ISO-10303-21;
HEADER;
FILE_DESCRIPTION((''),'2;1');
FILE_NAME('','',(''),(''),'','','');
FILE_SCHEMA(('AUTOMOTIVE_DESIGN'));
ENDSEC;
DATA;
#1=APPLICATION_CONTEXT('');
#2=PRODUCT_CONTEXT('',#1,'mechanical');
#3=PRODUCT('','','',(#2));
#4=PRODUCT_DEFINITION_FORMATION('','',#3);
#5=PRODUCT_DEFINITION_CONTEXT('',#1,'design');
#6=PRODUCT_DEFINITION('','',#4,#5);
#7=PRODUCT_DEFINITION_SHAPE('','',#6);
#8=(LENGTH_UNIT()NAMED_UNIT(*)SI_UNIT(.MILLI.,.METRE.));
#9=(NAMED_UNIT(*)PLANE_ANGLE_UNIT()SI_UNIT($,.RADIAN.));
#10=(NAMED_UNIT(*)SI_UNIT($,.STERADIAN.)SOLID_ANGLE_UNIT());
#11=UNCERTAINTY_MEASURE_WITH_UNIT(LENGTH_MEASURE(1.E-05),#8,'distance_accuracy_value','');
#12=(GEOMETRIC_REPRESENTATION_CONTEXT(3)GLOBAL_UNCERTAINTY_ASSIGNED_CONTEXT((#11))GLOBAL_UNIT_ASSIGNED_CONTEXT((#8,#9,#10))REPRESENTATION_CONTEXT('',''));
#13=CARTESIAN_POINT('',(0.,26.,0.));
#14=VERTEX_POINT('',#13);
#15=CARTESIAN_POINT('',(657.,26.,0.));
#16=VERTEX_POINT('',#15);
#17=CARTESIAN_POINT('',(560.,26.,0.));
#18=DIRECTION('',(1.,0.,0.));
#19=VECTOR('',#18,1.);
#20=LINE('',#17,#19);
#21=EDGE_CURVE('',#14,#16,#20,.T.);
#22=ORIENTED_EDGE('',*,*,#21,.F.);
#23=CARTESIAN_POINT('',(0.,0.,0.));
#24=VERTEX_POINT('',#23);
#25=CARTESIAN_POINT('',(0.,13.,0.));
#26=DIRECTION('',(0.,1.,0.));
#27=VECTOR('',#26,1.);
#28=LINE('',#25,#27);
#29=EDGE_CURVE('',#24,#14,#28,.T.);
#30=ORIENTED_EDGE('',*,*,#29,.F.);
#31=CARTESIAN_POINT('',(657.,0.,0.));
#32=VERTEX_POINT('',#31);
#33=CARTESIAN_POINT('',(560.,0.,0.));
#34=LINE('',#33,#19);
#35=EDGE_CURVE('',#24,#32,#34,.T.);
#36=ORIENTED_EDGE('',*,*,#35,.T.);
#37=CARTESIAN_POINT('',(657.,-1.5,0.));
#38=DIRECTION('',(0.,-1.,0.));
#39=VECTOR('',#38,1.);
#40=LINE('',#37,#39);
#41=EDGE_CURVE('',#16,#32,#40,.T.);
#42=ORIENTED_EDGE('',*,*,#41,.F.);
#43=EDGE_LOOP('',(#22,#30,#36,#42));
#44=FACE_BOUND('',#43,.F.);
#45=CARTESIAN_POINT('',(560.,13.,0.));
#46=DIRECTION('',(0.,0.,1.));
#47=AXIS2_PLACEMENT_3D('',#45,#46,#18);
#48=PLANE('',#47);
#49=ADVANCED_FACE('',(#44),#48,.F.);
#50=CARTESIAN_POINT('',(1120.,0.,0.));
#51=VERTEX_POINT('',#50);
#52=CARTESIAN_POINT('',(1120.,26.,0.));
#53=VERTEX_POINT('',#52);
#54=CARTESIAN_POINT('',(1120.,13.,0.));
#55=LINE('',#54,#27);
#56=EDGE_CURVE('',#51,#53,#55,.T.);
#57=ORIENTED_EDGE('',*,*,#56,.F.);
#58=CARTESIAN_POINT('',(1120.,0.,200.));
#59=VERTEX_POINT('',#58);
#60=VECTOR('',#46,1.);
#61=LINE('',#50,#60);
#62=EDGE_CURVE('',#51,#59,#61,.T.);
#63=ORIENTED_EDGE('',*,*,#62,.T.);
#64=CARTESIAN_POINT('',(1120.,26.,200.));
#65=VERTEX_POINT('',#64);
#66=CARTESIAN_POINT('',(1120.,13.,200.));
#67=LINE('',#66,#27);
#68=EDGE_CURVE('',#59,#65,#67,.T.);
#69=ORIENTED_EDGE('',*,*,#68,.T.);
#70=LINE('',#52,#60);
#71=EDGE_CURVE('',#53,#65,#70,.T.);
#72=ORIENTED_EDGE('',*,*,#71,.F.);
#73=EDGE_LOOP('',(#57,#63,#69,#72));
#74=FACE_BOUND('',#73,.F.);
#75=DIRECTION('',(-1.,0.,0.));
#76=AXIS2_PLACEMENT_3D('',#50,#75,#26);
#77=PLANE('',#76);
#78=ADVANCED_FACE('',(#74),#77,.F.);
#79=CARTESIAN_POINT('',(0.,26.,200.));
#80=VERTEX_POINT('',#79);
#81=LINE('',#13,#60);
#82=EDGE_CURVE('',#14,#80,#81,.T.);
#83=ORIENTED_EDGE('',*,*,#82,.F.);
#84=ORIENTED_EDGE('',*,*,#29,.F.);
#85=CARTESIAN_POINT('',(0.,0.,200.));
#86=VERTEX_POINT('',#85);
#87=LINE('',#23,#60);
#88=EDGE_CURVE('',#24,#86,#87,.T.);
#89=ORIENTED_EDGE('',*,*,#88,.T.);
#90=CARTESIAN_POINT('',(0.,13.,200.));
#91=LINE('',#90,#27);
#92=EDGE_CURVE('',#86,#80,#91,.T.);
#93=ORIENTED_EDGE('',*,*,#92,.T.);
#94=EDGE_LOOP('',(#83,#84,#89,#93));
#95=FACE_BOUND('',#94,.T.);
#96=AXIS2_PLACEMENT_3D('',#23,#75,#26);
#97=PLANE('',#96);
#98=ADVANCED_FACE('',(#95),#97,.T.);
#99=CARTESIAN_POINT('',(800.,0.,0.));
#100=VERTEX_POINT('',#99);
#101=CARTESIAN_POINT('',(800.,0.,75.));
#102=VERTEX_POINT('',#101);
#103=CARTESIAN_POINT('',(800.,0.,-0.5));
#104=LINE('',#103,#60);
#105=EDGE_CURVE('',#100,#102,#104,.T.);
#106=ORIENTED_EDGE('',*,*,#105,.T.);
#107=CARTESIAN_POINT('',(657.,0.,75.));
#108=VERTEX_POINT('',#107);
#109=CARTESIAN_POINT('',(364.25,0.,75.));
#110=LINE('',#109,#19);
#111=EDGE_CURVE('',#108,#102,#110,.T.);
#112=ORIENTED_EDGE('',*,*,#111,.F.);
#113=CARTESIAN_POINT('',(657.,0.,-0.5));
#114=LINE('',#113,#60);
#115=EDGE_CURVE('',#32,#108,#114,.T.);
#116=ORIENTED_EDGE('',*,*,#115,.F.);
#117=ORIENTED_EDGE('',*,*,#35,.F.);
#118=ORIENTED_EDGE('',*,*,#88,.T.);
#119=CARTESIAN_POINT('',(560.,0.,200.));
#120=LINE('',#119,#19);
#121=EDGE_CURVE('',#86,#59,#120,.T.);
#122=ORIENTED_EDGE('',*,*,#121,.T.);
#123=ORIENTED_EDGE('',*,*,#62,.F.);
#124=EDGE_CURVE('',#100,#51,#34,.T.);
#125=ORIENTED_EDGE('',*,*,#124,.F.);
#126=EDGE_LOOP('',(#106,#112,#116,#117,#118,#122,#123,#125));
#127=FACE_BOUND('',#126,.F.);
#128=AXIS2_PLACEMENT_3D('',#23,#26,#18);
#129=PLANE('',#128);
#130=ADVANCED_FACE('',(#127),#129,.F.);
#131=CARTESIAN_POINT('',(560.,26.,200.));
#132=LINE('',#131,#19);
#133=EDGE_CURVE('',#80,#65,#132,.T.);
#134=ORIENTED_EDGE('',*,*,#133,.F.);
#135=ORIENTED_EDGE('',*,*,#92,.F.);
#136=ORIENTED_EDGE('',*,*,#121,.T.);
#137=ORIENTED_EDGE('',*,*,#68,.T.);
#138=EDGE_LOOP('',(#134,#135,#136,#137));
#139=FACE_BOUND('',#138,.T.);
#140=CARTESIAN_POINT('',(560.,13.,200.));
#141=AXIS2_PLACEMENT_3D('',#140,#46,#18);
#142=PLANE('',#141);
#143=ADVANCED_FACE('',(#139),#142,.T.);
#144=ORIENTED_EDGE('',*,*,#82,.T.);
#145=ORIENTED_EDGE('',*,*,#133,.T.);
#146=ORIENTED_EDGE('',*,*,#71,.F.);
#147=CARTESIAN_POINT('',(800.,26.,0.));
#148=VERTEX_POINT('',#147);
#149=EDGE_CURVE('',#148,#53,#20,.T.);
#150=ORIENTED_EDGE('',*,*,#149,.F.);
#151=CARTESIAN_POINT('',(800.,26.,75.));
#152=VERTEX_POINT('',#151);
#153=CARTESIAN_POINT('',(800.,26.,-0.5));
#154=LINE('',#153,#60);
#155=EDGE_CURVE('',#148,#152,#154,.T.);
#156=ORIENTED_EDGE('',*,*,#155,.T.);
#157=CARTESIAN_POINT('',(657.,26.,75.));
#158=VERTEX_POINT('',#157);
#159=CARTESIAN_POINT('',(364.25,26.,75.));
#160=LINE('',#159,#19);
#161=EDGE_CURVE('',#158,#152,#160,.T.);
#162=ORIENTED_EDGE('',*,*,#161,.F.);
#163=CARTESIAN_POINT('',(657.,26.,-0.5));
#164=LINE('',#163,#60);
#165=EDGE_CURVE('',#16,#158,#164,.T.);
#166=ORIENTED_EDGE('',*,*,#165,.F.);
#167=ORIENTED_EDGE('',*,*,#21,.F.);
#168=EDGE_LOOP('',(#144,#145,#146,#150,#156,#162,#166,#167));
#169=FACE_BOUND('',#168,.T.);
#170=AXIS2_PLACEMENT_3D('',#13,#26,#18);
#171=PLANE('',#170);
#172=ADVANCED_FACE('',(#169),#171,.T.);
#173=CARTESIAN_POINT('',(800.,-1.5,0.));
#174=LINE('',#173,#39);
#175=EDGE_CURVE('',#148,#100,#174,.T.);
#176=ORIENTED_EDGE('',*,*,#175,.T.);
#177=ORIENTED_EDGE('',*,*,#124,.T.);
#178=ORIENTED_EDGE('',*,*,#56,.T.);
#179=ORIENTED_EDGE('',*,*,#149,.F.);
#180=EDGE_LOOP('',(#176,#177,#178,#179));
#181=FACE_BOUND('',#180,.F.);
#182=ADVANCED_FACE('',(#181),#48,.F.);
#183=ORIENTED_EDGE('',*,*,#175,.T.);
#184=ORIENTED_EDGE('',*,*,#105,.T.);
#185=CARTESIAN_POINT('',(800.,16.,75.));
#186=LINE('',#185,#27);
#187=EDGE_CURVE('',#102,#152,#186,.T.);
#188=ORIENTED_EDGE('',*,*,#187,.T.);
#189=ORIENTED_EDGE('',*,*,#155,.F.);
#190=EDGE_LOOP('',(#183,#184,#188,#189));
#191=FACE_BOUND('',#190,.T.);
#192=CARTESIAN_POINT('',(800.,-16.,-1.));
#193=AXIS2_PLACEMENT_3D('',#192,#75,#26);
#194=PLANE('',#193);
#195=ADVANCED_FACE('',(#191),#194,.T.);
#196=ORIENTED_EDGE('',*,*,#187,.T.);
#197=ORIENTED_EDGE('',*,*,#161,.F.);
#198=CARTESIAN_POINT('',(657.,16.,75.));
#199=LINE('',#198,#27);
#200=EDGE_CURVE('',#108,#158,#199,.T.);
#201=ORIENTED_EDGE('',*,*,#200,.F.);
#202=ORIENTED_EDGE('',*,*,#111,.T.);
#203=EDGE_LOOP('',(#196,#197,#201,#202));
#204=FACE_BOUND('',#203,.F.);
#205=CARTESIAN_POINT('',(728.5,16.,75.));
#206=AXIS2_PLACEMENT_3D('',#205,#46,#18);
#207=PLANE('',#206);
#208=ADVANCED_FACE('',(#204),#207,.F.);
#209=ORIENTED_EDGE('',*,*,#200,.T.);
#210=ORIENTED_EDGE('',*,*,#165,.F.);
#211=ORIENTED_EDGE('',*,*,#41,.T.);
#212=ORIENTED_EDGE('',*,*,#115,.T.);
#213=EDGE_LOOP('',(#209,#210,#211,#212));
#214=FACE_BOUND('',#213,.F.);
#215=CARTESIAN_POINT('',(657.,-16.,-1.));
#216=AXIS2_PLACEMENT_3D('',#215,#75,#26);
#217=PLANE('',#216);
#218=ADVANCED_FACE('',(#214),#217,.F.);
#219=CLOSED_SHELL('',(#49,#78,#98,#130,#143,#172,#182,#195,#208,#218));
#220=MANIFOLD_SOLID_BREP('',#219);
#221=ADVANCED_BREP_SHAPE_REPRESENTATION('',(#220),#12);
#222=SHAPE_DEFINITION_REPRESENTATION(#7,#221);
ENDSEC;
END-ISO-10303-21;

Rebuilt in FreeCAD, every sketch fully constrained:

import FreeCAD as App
import Part
import Sketcher

V = App.Vector
Q = App.Units.Quantity


def add_polygon(sketch, points):
    """Adds a closed chain of lines whose ends are joined by coincident constraints."""
    first, n = sketch.GeometryCount, len(points)
    for a, b in zip(points, points[1:] + points[:1]):
        sketch.addGeometry(Part.LineSegment(App.Vector(*a, 0), App.Vector(*b, 0)), False)
    for i in range(n):
        sketch.addConstraint(Sketcher.Constraint("Coincident", first + i, 2, first + (i + 1) % n, 1))

doc = App.newDocument("Part")
body = doc.addObject("PartDesign::Body", "Body")

sketch1 = doc.addObject("Sketcher::SketchObject", "Sketch")
body.addObject(sketch1)
sketch1.AttachmentSupport = (doc.XY_Plane, [""])
sketch1.MapMode = "FlatFace"
sketch1.AttachmentOffset = App.Placement(V(0, 0, -1), App.Rotation())
add_polygon(sketch1, [(657, 48), (657, -16), (800, -16), (800, 48)])
sketch1.addConstraint([
    Sketcher.Constraint("Vertical", 0),
    Sketcher.Constraint("Horizontal", 1),
    Sketcher.Constraint("Vertical", 2),
    Sketcher.Constraint("Horizontal", 3),
    Sketcher.Constraint("DistanceX", 1, 1, 1, 2, Q("143 mm")),
    Sketcher.Constraint("DistanceY", 0, 2, 0, 1, Q("64 mm")),
    Sketcher.Constraint("DistanceX", -1, 1, 0, 2, Q("657 mm")),
    Sketcher.Constraint("DistanceY", 0, 2, -1, 1, Q("16 mm")),
])
pad1 = doc.addObject("PartDesign::Pad", "Pad")
body.addObject(pad1)
pad1.Profile = sketch1
pad1.Length = 76
body2 = doc.addObject("PartDesign::Body", "Body001")

sketch2 = doc.addObject("Sketcher::SketchObject", "Sketch001")
body2.addObject(sketch2)
sketch2.AttachmentSupport = (doc.getObject("XY_Plane001"), [""])
sketch2.MapMode = "FlatFace"
add_polygon(sketch2, [(0, 26), (0, 0), (1120, 0), (1120, 26)])
sketch2.addConstraint([
    Sketcher.Constraint("Vertical", 0),
    Sketcher.Constraint("Horizontal", 1),
    Sketcher.Constraint("Vertical", 2),
    Sketcher.Constraint("Horizontal", 3),
    Sketcher.Constraint("Coincident", 0, 2, -1, 1),
    Sketcher.Constraint("DistanceX", 1, 1, 1, 2, Q("1120 mm")),
    Sketcher.Constraint("DistanceY", 0, 2, 0, 1, Q("26 mm")),
])
pad2 = doc.addObject("PartDesign::Pad", "Pad001")
body2.addObject(pad2)
pad2.Profile = sketch2
pad2.Length = 200
doc.recompute()

boolean = doc.addObject("PartDesign::Boolean", "Boolean")
body2.addObject(boolean)
boolean.Type = "Cut"
boolean.addObjects([body])

doc.recompute()
